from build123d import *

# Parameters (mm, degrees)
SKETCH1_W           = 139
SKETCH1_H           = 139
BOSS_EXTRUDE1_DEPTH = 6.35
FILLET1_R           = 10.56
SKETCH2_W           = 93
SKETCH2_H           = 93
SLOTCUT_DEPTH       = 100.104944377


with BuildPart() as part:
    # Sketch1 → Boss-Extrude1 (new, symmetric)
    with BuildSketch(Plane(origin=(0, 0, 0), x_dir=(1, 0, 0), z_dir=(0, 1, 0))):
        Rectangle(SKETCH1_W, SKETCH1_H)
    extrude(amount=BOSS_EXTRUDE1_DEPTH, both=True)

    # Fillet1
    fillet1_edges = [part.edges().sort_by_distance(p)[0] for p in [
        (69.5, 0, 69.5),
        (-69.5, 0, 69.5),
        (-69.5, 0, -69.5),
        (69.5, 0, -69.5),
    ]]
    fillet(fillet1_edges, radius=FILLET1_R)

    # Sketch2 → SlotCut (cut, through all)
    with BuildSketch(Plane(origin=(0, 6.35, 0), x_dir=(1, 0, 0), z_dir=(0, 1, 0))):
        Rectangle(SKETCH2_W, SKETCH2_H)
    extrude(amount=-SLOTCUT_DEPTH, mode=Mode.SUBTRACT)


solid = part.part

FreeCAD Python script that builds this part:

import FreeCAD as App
import Part
import Sketcher


def edges_at(feature, points):
    """Names of the edges that pass closest to the given points."""
    edges = feature.Shape.Edges
    near = lambda p: min(range(len(edges)), key=lambda i: edges[i].distToShape(Part.Vertex(*p))[0])
    return sorted({f"Edge{near(p) + 1}" for p in points})


def add_polygon(sketch, points):
    """Adds a closed chain of lines whose ends are joined by coincident constraints."""
    first, n = sketch.GeometryCount, len(points)
    for a, b in zip(points, points[1:] + points[:1]):
        sketch.addGeometry(Part.LineSegment(App.Vector(*a, 0), App.Vector(*b, 0)), False)
    for i in range(n):
        sketch.addConstraint(Sketcher.Constraint("Coincident", first + i, 2, first + (i + 1) % n, 1))

doc = App.newDocument("Part")
body = doc.addObject("PartDesign::Body", "Body")

sketch1 = doc.addObject("Sketcher::SketchObject", "Sketch")
body.addObject(sketch1)
sketch1.AttachmentSupport = (doc.XZ_Plane, [""])
sketch1.MapMode = "FlatFace"
add_polygon(sketch1, [(-70, -70), (-70, 70), (70, 70), (70, -70)])
sketch1.addConstraint(Sketcher.Constraint("Vertical", 0))
sketch1.addConstraint(Sketcher.Constraint("Horizontal", 1))
sketch1.addConstraint(Sketcher.Constraint("Vertical", 2))
sketch1.addConstraint(Sketcher.Constraint("Horizontal", 3))
sketch1.addConstraint(Sketcher.Constraint("Symmetric", 0, 2, 2, 2, -1, 1))
sketch1.addConstraint(Sketcher.Constraint("Equal", 3, 0))
sketch1.addConstraint(Sketcher.Constraint("DistanceX", 1, 1, 1, 2, 139.0))
pad1 = doc.addObject("PartDesign::Pad", "Pad")
body.addObject(pad1)
pad1.Profile = sketch1
pad1.Length = 12.7
pad1.Midplane = True
doc.recompute()

fillet = doc.addObject("PartDesign::Fillet", "Fillet")
body.addObject(fillet)
fillet.Base = (pad1, edges_at(pad1, [
    (69.5, 0, 69.5),
    (-69.5, 0, 69.5),
    (-69.5, 0, -69.5),
    (69.5, 0, -69.5),
]))
fillet.Radius = 10.56

sketch2 = doc.addObject("Sketcher::SketchObject", "Sketch001")
body.addObject(sketch2)
sketch2.AttachmentSupport = (doc.XZ_Plane, [""])
sketch2.MapMode = "FlatFace"
sketch2.AttachmentOffset = App.Placement(App.Vector(0, 0, -6.35), App.Rotation())
add_polygon(sketch2, [(-46, -46), (-46, 46), (46, 46), (46, -46)])
sketch2.addConstraint(Sketcher.Constraint("Vertical", 0))
sketch2.addConstraint(Sketcher.Constraint("Horizontal", 1))
sketch2.addConstraint(Sketcher.Constraint("Vertical", 2))
sketch2.addConstraint(Sketcher.Constraint("Horizontal", 3))
sketch2.addConstraint(Sketcher.Constraint("Symmetric", 0, 2, 2, 2, -1, 1))
sketch2.addConstraint(Sketcher.Constraint("Equal", 3, 0))
sketch2.addConstraint(Sketcher.Constraint("DistanceX", 1, 1, 1, 2, 93.0))
pocket1 = doc.addObject("PartDesign::Pocket", "Pocket")
body.addObject(pocket1)
pocket1.Profile = sketch2
pocket1.Type = "ThroughAll"
pocket1.Reversed = True

doc.recompute()
